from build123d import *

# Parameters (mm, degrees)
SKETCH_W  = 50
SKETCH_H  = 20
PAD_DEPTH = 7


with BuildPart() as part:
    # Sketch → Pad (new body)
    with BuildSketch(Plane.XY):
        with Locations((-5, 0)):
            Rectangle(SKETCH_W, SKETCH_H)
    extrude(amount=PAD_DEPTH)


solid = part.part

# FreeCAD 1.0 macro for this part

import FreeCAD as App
import Part
import Sketcher
Q = App.Units.Quantity


def add_polygon(sketch, points):
    """Adds a closed chain of lines whose ends are joined by coincident constraints."""
    first, n = sketch.GeometryCount, len(points)
    for a, b in zip(points, points[1:] + points[:1]):
        sketch.addGeometry(Part.LineSegment(App.Vector(*a, 0), App.Vector(*b, 0)), False)
    for i in range(n):
        sketch.addConstraint(Sketcher.Constraint("Coincident", first + i, 2, first + (i + 1) % n, 1))

doc = App.newDocument("Part")
body = doc.addObject("PartDesign::Body", "Body")

sketch1 = body.newObject("Sketcher::SketchObject", "Sketch")
sketch1.AttachmentSupport = (doc.getObject("XY_Plane"), [""])
sketch1.MapMode = "FlatFace"
add_polygon(sketch1, [(-30, 10), (-30, -10), (20, -10), (20, 10)])
sketch1.addConstraint(Sketcher.Constraint("Vertical", 0))
sketch1.addConstraint(Sketcher.Constraint("Horizontal", 1))
sketch1.addConstraint(Sketcher.Constraint("Vertical", 2))
sketch1.addConstraint(Sketcher.Constraint("Horizontal", 3))
sketch1.addConstraint(Sketcher.Constraint("DistanceX", 1, 1, 1, 2, Q("50 mm")))
sketch1.addConstraint(Sketcher.Constraint("DistanceY", 0, 2, 0, 1, Q("20 mm")))
sketch1.addConstraint(Sketcher.Constraint("DistanceX", 0, 2, -1, 1, Q("30 mm")))
sketch1.addConstraint(Sketcher.Constraint("DistanceY", 0, 2, -1, 1, Q("10 mm")))
pad1 = body.newObject("PartDesign::Pad", "Pad")
pad1.Profile = sketch1
pad1.Length = 7

doc.recompute()
